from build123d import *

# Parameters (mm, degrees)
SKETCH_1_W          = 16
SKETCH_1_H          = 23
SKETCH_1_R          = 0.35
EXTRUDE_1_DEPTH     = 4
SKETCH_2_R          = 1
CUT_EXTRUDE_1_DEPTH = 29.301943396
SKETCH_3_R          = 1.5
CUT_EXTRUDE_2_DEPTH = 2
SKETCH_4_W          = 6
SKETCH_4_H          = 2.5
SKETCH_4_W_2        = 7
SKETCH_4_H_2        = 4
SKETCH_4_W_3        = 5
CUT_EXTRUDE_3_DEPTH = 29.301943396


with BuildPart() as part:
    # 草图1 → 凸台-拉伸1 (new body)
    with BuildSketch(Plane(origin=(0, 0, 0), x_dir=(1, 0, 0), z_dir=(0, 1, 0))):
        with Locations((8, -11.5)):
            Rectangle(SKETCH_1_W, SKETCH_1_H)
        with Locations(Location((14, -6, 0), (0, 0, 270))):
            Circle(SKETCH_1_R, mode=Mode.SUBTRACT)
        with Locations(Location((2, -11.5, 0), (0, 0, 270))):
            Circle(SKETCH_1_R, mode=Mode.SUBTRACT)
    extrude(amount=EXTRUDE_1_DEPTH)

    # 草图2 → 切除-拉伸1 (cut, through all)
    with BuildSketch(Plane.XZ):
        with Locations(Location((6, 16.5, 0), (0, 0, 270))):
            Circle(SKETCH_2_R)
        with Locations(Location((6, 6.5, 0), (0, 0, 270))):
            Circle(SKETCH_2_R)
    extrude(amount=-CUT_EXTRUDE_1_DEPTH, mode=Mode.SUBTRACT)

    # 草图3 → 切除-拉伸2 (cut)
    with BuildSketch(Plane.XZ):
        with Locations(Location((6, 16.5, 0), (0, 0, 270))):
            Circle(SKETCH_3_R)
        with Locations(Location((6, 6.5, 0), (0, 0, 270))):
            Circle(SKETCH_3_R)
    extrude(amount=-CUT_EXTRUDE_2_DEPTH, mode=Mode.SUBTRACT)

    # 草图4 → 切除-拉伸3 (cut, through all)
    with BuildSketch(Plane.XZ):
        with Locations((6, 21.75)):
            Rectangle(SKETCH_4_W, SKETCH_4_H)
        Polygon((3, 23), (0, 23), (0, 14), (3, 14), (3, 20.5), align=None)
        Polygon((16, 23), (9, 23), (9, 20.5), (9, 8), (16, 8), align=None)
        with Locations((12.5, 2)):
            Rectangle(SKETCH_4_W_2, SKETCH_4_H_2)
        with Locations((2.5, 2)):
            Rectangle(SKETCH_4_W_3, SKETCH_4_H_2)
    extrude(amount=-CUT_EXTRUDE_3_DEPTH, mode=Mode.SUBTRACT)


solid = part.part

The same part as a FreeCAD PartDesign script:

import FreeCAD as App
import Part
import Sketcher


def add_polygon(sketch, points):
    """Adds a closed chain of lines whose ends are joined by coincident constraints."""
    first, n = sketch.GeometryCount, len(points)
    for a, b in zip(points, points[1:] + points[:1]):
        sketch.addGeometry(Part.LineSegment(App.Vector(*a, 0), App.Vector(*b, 0)), False)
    for i in range(n):
        sketch.addConstraint(Sketcher.Constraint("Coincident", first + i, 2, first + (i + 1) % n, 1))

doc = App.newDocument("Part")
body = doc.addObject("PartDesign::Body", "Body")

sketch1 = body.newObject("Sketcher::SketchObject", "Sketch")
sketch1.AttachmentSupport = (doc.getObject("XZ_Plane"), [""])
sketch1.MapMode = "FlatFace"
add_polygon(sketch1, [(0, 0), (0, 23), (16, 23), (16, 0)])
sketch1.addGeometry(Part.Circle(App.Vector(2, 11.5, 0), App.Vector(0, 0, 1), 0.35), False)
sketch1.addGeometry(Part.Circle(App.Vector(14, 6, 0), App.Vector(0, 0, 1), 0.35), False)
sketch1.addConstraint([
    Sketcher.Constraint("Vertical", 0),
    Sketcher.Constraint("Horizontal", 1),
    Sketcher.Constraint("Vertical", 2),
    Sketcher.Constraint("Horizontal", 3),
    Sketcher.Constraint("Coincident", 3, 2, -1, 1),
    Sketcher.Constraint("Equal", 4, 5),
    Sketcher.Constraint("Diameter", 4, 0.7),
    Sketcher.Constraint("DistanceX", 1, 1, 1, 2, 16.0),
    Sketcher.Constraint("DistanceY", 0, 1, 0, 2, 23.0),
    Sketcher.Constraint("DistanceX", -1, 1, 4, 3, 2.0),
    Sketcher.Constraint("DistanceX", -1, 1, 5, 3, 14.0),
    Sketcher.Constraint("DistanceY", -1, 1, 5, 3, 6.0),
    Sketcher.Constraint("DistanceY", -1, 1, 4, 3, 11.5),
])
pad1 = body.newObject("PartDesign::Pad", "Pad")
pad1.Profile = sketch1
pad1.Length = 4
pad1.Reversed = True

sketch2 = body.newObject("Sketcher::SketchObject", "Sketch001")
sketch2.AttachmentSupport = (doc.getObject("XZ_Plane"), [""])
sketch2.MapMode = "FlatFace"
sketch2.addGeometry([
    Part.Circle(App.Vector(6, 16.5, 0), App.Vector(0, 0, 1), 1),
    Part.Circle(App.Vector(6, 6.5, 0), App.Vector(0, 0, 1), 1),
], False)
sketch2.addConstraint([
    Sketcher.Constraint("Equal", 0, 1),
    Sketcher.Constraint("Vertical", 0, 3, 1, 3),
    Sketcher.Constraint("Diameter", 0, 2.0),
    Sketcher.Constraint("DistanceX", -1, 1, 0, 3, 6.0),
    Sketcher.Constraint("DistanceY", 1, 3, 0, 3, 10.0),
    Sketcher.Constraint("DistanceY", -1, 1, 0, 3, 16.5),
])
pocket1 = body.newObject("PartDesign::Pocket", "Pocket")
pocket1.Profile = sketch2
pocket1.Type = "ThroughAll"

sketch3 = body.newObject("Sketcher::SketchObject", "Sketch002")
sketch3.AttachmentSupport = (doc.getObject("XZ_Plane"), [""])
sketch3.MapMode = "FlatFace"
sketch3.addGeometry([
    Part.Circle(App.Vector(6, 16.5, 0), App.Vector(0, 0, 1), 1.5),
    Part.Circle(App.Vector(6, 6.5, 0), App.Vector(0, 0, 1), 1.5),
], False)
sketch3.addConstraint([
    Sketcher.Constraint("Equal", 0, 1),
    Sketcher.Constraint("Vertical", 0, 3, 1, 3),
    Sketcher.Constraint("Diameter", 0, 3.0),
    Sketcher.Constraint("DistanceX", -1, 1, 0, 3, 6.0),
    Sketcher.Constraint("DistanceY", 1, 3, 0, 3, 10.0),
    Sketcher.Constraint("DistanceY", -1, 1, 0, 3, 16.5),
])
pocket2 = body.newObject("PartDesign::Pocket", "Pocket001")
pocket2.Profile = sketch3
pocket2.Length = 2

sketch4 = body.newObject("Sketcher::SketchObject", "Sketch003")
sketch4.AttachmentSupport = (doc.getObject("XZ_Plane"), [""])
sketch4.MapMode = "FlatFace"
add_polygon(sketch4, [(3, 20.5), (9, 20.5), (9, 8), (16, 8), (16, 23), (0, 23), (0, 14), (3, 14)])
add_polygon(sketch4, [(9, 4), (9, 0), (16, 0), (16, 4)])
add_polygon(sketch4, [(0, 4), (0, 0), (5, 0), (5, 4)])
sketch4.addConstraint([
    Sketcher.Constraint("Horizontal", 0),
    Sketcher.Constraint("Vertical", 1),
    Sketcher.Constraint("Horizontal", 2),
    Sketcher.Constraint("Vertical", 3),
    Sketcher.Constraint("Horizontal", 4),
    Sketcher.Constraint("Vertical", 5),
    Sketcher.Constraint("Horizontal", 6),
    Sketcher.Constraint("Vertical", 7),
    Sketcher.Constraint("Vertical", 8),
    Sketcher.Constraint("Horizontal", 9),
    Sketcher.Constraint("Vertical", 10),
    Sketcher.Constraint("Horizontal", 11),
    Sketcher.Constraint("Vertical", 12),
    Sketcher.Constraint("Horizontal", 13),
    Sketcher.Constraint("Vertical", 14),
    Sketcher.Constraint("Horizontal", 15),
    Sketcher.Constraint("Coincident", 12, 2, -1, 1),
    Sketcher.Constraint("PointOnObject", 4, 2, -2),
    Sketcher.Constraint("PointOnObject", 8, 2, -1),
    Sketcher.Constraint("Horizontal", 11, 2, 14, 2),
    Sketcher.Constraint("Vertical", 1, 2, 8, 2),
    Sketcher.Constraint("Vertical", 3, 2, 9, 2),
    Sketcher.Constraint("DistanceX", 0, 1, 0, 2, 6.0),
    Sketcher.Constraint("DistanceX", 2, 1, 2, 2, 7.0),
    Sketcher.Constraint("DistanceX", 4, 2, 4, 1, 16.0),
    Sketcher.Constraint("DistanceX", 13, 1, 13, 2, 5.0),
    Sketcher.Constraint("DistanceY", 3, 1, 3, 2, 15.0),
    Sketcher.Constraint("DistanceY", 5, 2, 5, 1, 9.0),
    Sketcher.Constraint("DistanceY", 8, 2, 8, 1, 4.0),
    Sketcher.Constraint("DistanceY", 1, 2, 1, 1, 12.5),
    Sketcher.Constraint("DistanceY", -1, 1, 1, 2, 8.0),
])
pocket3 = body.newObject("PartDesign::Pocket", "Pocket002")
pocket3.Profile = sketch4
pocket3.Type = "ThroughAll"

doc.recompute()
